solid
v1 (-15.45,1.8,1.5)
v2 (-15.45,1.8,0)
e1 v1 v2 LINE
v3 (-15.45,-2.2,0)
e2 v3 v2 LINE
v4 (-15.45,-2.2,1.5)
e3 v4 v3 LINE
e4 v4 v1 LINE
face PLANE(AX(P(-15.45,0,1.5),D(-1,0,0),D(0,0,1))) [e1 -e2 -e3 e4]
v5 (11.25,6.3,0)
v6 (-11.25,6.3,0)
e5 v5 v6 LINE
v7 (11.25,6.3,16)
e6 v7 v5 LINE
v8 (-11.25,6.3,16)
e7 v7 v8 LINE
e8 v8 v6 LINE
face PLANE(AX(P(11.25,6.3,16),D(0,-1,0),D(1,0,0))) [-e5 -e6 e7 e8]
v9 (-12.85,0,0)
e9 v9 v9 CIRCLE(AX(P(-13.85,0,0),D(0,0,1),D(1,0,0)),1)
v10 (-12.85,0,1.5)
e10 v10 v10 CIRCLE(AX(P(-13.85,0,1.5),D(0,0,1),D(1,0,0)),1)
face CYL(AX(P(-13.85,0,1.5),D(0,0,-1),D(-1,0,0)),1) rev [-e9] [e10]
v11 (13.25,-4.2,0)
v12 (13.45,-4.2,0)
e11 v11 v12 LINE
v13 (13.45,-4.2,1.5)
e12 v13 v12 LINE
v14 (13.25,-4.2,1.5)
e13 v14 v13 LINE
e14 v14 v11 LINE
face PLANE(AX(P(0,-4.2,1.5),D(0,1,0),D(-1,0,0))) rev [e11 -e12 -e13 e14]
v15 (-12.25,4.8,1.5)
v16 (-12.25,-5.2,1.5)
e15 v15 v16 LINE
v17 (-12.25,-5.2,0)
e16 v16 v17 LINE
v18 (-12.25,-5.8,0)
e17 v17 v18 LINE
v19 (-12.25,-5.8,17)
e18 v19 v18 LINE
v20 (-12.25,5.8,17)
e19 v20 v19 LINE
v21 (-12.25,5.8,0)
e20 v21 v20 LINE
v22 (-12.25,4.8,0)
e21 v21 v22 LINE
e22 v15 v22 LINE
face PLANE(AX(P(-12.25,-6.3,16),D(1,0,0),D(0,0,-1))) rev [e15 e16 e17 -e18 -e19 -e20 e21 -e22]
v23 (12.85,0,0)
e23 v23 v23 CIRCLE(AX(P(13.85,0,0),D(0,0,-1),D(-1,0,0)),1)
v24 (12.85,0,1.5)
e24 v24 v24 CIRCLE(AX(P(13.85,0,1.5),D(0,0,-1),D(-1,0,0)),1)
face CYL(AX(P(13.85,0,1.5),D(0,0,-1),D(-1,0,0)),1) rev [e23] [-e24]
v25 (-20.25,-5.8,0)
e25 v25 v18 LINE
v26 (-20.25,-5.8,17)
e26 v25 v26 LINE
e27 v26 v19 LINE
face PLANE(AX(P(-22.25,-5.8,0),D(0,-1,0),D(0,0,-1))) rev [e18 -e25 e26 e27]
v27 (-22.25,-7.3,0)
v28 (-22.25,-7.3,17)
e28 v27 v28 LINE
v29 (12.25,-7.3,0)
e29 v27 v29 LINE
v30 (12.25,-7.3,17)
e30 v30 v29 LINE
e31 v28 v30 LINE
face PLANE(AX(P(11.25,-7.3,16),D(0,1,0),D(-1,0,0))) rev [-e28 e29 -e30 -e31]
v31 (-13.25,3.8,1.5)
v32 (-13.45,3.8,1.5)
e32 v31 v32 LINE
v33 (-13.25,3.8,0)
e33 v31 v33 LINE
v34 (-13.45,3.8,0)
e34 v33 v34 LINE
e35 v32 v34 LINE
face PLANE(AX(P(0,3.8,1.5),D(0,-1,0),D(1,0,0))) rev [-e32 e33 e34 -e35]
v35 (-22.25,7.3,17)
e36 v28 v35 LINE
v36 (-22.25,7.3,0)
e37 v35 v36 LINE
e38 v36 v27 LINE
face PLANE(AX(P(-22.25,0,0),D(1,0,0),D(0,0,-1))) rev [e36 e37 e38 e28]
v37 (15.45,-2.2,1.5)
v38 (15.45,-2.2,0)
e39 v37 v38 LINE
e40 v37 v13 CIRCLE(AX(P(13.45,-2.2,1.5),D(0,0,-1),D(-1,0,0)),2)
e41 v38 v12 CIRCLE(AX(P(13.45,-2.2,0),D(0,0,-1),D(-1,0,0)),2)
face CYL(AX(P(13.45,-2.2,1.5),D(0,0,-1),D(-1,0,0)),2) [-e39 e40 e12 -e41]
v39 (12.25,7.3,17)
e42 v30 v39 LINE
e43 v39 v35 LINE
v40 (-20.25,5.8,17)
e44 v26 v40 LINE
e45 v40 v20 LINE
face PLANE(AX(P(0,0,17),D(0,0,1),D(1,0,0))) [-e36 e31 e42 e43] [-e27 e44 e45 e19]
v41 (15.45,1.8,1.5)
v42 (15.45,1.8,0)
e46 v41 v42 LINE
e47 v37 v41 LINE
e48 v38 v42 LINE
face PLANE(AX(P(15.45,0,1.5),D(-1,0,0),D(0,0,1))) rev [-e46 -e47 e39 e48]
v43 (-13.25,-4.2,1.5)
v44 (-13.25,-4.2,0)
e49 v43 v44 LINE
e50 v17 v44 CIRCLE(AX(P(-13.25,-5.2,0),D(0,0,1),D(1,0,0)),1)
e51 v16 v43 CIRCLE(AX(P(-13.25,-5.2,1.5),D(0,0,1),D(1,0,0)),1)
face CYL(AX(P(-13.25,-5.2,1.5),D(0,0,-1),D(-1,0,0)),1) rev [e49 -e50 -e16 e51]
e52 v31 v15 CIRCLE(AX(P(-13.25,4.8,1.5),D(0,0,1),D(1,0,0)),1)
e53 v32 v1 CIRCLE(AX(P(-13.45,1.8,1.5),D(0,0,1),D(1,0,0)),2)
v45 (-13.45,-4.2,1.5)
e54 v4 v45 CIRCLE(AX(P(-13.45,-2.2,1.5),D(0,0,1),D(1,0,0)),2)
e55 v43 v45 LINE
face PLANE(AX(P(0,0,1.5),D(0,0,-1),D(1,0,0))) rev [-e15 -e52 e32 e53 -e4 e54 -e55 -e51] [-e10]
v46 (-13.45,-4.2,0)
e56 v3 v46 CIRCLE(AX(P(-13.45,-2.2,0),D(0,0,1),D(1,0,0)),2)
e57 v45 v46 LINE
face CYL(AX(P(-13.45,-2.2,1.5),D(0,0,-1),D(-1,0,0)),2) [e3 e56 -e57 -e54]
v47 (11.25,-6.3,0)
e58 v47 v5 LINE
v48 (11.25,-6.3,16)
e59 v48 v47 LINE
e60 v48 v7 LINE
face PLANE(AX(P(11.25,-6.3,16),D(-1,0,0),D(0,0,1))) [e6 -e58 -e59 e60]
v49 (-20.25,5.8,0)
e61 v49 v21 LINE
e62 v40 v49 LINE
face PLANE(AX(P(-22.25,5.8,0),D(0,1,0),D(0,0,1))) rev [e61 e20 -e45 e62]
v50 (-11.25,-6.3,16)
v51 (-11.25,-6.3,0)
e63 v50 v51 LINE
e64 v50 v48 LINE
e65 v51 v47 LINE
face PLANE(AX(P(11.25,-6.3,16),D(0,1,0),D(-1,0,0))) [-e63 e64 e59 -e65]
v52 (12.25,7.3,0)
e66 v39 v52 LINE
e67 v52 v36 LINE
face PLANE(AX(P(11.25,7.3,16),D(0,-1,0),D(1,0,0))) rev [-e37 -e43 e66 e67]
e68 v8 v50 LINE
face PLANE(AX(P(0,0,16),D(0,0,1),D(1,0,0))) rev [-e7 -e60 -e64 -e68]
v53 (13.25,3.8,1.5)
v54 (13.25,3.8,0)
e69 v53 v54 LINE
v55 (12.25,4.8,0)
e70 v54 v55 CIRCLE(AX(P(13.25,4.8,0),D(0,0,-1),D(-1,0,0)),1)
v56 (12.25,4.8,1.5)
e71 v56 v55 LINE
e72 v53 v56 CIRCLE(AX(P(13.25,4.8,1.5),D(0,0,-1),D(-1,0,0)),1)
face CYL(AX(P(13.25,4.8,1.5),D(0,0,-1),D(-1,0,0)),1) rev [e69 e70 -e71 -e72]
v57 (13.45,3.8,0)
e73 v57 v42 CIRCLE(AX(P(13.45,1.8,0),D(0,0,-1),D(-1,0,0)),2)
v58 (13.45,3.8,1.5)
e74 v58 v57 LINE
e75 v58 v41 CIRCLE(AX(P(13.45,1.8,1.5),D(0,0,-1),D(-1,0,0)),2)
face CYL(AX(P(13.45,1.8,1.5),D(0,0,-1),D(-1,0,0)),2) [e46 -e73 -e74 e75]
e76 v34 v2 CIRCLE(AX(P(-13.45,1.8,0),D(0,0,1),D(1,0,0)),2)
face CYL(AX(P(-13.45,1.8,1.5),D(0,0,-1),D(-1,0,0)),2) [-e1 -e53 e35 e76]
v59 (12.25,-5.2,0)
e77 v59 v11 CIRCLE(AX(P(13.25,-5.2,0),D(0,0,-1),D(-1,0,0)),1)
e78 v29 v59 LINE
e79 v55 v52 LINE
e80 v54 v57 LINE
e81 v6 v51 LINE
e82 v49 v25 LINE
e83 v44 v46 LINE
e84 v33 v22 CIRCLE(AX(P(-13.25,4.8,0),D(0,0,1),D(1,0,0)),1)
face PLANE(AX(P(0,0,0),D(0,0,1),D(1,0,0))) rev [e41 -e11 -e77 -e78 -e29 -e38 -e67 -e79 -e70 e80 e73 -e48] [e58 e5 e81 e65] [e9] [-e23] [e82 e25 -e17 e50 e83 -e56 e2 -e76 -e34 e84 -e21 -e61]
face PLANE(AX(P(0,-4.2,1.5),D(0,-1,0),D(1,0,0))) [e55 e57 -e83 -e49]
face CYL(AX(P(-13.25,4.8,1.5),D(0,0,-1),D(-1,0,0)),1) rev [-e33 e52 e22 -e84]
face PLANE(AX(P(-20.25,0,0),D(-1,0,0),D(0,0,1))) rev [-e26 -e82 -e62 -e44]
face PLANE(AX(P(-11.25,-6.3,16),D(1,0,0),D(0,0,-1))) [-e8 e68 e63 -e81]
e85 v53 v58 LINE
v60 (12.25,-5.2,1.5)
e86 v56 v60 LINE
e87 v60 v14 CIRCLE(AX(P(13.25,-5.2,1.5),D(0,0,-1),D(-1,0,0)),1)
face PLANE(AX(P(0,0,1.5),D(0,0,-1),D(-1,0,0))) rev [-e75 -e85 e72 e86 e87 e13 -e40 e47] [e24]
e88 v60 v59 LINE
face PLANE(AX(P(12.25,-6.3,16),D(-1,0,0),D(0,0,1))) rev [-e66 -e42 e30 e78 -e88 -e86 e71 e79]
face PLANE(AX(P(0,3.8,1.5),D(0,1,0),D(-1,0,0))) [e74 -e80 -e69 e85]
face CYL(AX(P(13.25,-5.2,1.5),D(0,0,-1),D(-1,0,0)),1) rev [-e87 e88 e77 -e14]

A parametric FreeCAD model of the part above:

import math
import FreeCAD as App
import Part
import Sketcher
Q = App.Units.Quantity


def faces_at(feature, points):
    """Names of the faces that lie closest to the given points."""
    faces = feature.Shape.Faces
    near = lambda p: min(range(len(faces)), key=lambda i: faces[i].distToShape(Part.Vertex(*p))[0])
    return sorted({f"Face{near(p) + 1}" for p in points})

doc = App.newDocument("Part")
body = doc.addObject("PartDesign::Body", "Body")

sketch1 = body.newObject("Sketcher::SketchObject", "Sketch")
sketch1.AttachmentSupport = (doc.getObject("XY_Plane"), [""])
sketch1.MapMode = "FlatFace"
sketch1.addGeometry([
    Part.LineSegment(App.Vector(-11, 6, 0), App.Vector(-11, -6, 0)),
    Part.LineSegment(App.Vector(-11, -6, 0), App.Vector(11, -6, 0)),
    Part.LineSegment(App.Vector(11, -6, 0), App.Vector(11, 6, 0)),
    Part.LineSegment(App.Vector(11, 6, 0), App.Vector(-11, 6, 0)),
], False)
sketch1.addConstraint([
    Sketcher.Constraint("Coincident", 0, 2, 1, 1),
    Sketcher.Constraint("Coincident", 1, 2, 2, 1),
    Sketcher.Constraint("Coincident", 2, 2, 3, 1),
    Sketcher.Constraint("Coincident", 3, 2, 0, 1),
    Sketcher.Constraint("Vertical", 0),
    Sketcher.Constraint("Horizontal", 1),
    Sketcher.Constraint("Vertical", 2),
    Sketcher.Constraint("Horizontal", 3),
    Sketcher.Constraint("Symmetric", 0, 2, 2, 2, -1, 1),
    Sketcher.Constraint("DistanceX", 1, 1, 1, 2, Q("22.5 mm")),
    Sketcher.Constraint("DistanceY", 0, 2, 0, 1, Q("12.6 mm")),
])
pad1 = body.newObject("PartDesign::Pad", "Pad")
pad1.Profile = sketch1
pad1.Length = 16
doc.recompute()

thickness = body.newObject("PartDesign::Thickness", "Thickness")
thickness.Base = (pad1, faces_at(pad1, [(0, 0, 0)]))
thickness.Value = 1
thickness.Reversed = False
thickness.Join = "Intersection"

sketch2 = body.newObject("Sketcher::SketchObject", "Sketch001")
sketch2.AttachmentSupport = (doc.getObject("XY_Plane"), [""])
sketch2.MapMode = "FlatFace"
sketch2.addGeometry([
    Part.LineSegment(App.Vector(13.45, -4.2, 0), App.Vector(13.25, -4.2, 0)),
    Part.ArcOfCircle(Part.Circle(App.Vector(13.25, -5.2, 0), App.Vector(0, 0, 1), 1), math.radians(90), math.radians(180)),
    Part.LineSegment(App.Vector(12.25, -5.2, 0), App.Vector(12.25, 4.8, 0)),
    Part.ArcOfCircle(Part.Circle(App.Vector(13.25, 4.8, 0), App.Vector(0, 0, 1), 1), math.radians(-180), math.radians(-90)),
    Part.LineSegment(App.Vector(13.25, 3.8, 0), App.Vector(13.45, 3.8, 0)),
    Part.ArcOfCircle(Part.Circle(App.Vector(13.45, 1.8, 0), App.Vector(0, 0, 1), 2), math.radians(0), math.radians(90)),
    Part.LineSegment(App.Vector(15.45, 1.8, 0), App.Vector(15.45, -2.2, 0)),
    Part.ArcOfCircle(Part.Circle(App.Vector(13.45, -2.2, 0), App.Vector(0, 0, 1), 2), math.radians(-90), math.radians(0)),
    Part.Circle(App.Vector(13.85, 0, 0), App.Vector(0, 0, 1), 1),
], False)
sketch2.addConstraint([
    Sketcher.Constraint("Tangent", 0, 2, 1, 1),
    Sketcher.Constraint("Tangent", 1, 2, 2, 1),
    Sketcher.Constraint("Tangent", 2, 2, 3, 1),
    Sketcher.Constraint("Tangent", 3, 2, 4, 1),
    Sketcher.Constraint("Tangent", 4, 2, 5, 2),
    Sketcher.Constraint("Tangent", 5, 1, 6, 1),
    Sketcher.Constraint("Tangent", 6, 2, 7, 2),
    Sketcher.Constraint("Tangent", 7, 1, 0, 1),
    Sketcher.Constraint("Horizontal", 0),
    Sketcher.Constraint("Vertical", 2),
    Sketcher.Constraint("Horizontal", 4),
    Sketcher.Constraint("Vertical", 6),
    Sketcher.Constraint("Equal", 1, 3),
    Sketcher.Constraint("Equal", 5, 7),
    Sketcher.Constraint("Equal", 3, 8),
    Sketcher.Constraint("PointOnObject", 8, 3, -1),
    Sketcher.Constraint("Diameter", 8, Q("2 mm")),
    Sketcher.Constraint("Radius", 5, Q("2 mm")),
    Sketcher.Constraint("DistanceY", 2, 1, 2, 2, Q("10 mm")),
    Sketcher.Constraint("DistanceX", 0, 2, 0, 1, Q("0.2 mm")),
    Sketcher.Constraint("DistanceY", 1, 3, -1, 1, Q("5.2 mm")),
    Sketcher.Constraint("DistanceX", 5, 3, 8, 3, Q("0.4 mm")),
    Sketcher.Constraint("DistanceX", -1, 1, 1, 3, Q("13.25 mm")),
])
pad2 = body.newObject("PartDesign::Pad", "Pad001")
pad2.Profile = sketch2
pad2.Length = 1.5
doc.recompute()

mirrored = body.newObject("PartDesign::Mirrored", "Mirrored")
mirrored.Originals = [pad2]
mirrored.MirrorPlane = (doc.getObject("YZ_Plane"), [""])
body.Tip = mirrored

sketch3 = body.newObject("Sketcher::SketchObject", "Sketch002")
sketch3.AttachmentSupport = (doc.getObject("YZ_Plane"), [""])
sketch3.MapMode = "FlatFace"
sketch3.AttachmentOffset = App.Placement(App.Vector(0, 0, -12.25), App.Rotation())
sketch3.addGeometry([
    Part.LineSegment(App.Vector(7.3, 0, 0), App.Vector(5.8, 0, 0)),
    Part.LineSegment(App.Vector(5.8, 0, 0), App.Vector(5.8, 17, 0)),
    Part.LineSegment(App.Vector(5.8, 17, 0), App.Vector(7.3, 17, 0)),
    Part.LineSegment(App.Vector(7.3, 17, 0), App.Vector(7.3, 0, 0)),
    Part.LineSegment(App.Vector(-5.8, 0, 0), App.Vector(-7.3, 0, 0)),
    Part.LineSegment(App.Vector(-7.3, 0, 0), App.Vector(-7.3, 17, 0)),
    Part.LineSegment(App.Vector(-7.3, 17, 0), App.Vector(-5.8, 17, 0)),
    Part.LineSegment(App.Vector(-5.8, 17, 0), App.Vector(-5.8, 0, 0)),
], False)
sketch3.addConstraint([
    Sketcher.Constraint("Coincident", 0, 2, 1, 1),
    Sketcher.Constraint("Coincident", 1, 2, 2, 1),
    Sketcher.Constraint("Coincident", 2, 2, 3, 1),
    Sketcher.Constraint("Coincident", 3, 2, 0, 1),
    Sketcher.Constraint("Coincident", 4, 2, 5, 1),
    Sketcher.Constraint("Coincident", 5, 2, 6, 1),
    Sketcher.Constraint("Coincident", 6, 2, 7, 1),
    Sketcher.Constraint("Coincident", 7, 2, 4, 1),
    Sketcher.Constraint("Horizontal", 0),
    Sketcher.Constraint("Vertical", 1),
    Sketcher.Constraint("Horizontal", 2),
    Sketcher.Constraint("Vertical", 3),
    Sketcher.Constraint("Horizontal", 4),
    Sketcher.Constraint("Vertical", 5),
    Sketcher.Constraint("Horizontal", 6),
    Sketcher.Constraint("Vertical", 7),
    Sketcher.Constraint("Symmetric", 3, 2, 4, 2, -1, 1),
    Sketcher.Constraint("Symmetric", 1, 2, 6, 2, -2),
    Sketcher.Constraint("PointOnObject", 0, 2, -1),
    Sketcher.Constraint("DistanceY", 1, 1, 1, 2, Q("17 mm")),
    Sketcher.Constraint("DistanceX", 0, 2, 0, 1, Q("1.5 mm")),
    Sketcher.Constraint("DistanceX", -1, 1, 0, 2, Q("5.8 mm")),
])
pad3 = body.newObject("PartDesign::Pad", "Pad002")
pad3.Profile = sketch3
pad3.Length = 10
pad3.Reversed = True

sketch4 = body.newObject("Sketcher::SketchObject", "Sketch003")
sketch4.AttachmentSupport = (doc.getObject("YZ_Plane"), [""])
sketch4.MapMode = "FlatFace"
sketch4.AttachmentOffset = App.Placement(App.Vector(0, 0, -22.25), App.Rotation())
sketch4.addGeometry([
    Part.LineSegment(App.Vector(6, 0, 0), App.Vector(-6, 0, 0)),
    Part.LineSegment(App.Vector(-6, 0, 0), App.Vector(-6, 17, 0)),
    Part.LineSegment(App.Vector(-6, 17, 0), App.Vector(6, 17, 0)),
    Part.LineSegment(App.Vector(6, 17, 0), App.Vector(6, 0, 0)),
], False)
sketch4.addConstraint([
    Sketcher.Constraint("Coincident", 0, 2, 1, 1),
    Sketcher.Constraint("Coincident", 1, 2, 2, 1),
    Sketcher.Constraint("Coincident", 2, 2, 3, 1),
    Sketcher.Constraint("Coincident", 3, 2, 0, 1),
    Sketcher.Constraint("Horizontal", 0),
    Sketcher.Constraint("Vertical", 1),
    Sketcher.Constraint("Horizontal", 2),
    Sketcher.Constraint("Vertical", 3),
    Sketcher.Constraint("Symmetric", 0, 2, 3, 2, -1, 1),
    Sketcher.Constraint("DistanceY", 1, 1, 1, 2, Q("17 mm")),
    Sketcher.Constraint("DistanceX", 0, 2, 0, 1, Q("11.6 mm")),
])
pad4 = body.newObject("PartDesign::Pad", "Pad003")
pad4.Profile = sketch4
pad4.Length = 2

doc.recompute()
